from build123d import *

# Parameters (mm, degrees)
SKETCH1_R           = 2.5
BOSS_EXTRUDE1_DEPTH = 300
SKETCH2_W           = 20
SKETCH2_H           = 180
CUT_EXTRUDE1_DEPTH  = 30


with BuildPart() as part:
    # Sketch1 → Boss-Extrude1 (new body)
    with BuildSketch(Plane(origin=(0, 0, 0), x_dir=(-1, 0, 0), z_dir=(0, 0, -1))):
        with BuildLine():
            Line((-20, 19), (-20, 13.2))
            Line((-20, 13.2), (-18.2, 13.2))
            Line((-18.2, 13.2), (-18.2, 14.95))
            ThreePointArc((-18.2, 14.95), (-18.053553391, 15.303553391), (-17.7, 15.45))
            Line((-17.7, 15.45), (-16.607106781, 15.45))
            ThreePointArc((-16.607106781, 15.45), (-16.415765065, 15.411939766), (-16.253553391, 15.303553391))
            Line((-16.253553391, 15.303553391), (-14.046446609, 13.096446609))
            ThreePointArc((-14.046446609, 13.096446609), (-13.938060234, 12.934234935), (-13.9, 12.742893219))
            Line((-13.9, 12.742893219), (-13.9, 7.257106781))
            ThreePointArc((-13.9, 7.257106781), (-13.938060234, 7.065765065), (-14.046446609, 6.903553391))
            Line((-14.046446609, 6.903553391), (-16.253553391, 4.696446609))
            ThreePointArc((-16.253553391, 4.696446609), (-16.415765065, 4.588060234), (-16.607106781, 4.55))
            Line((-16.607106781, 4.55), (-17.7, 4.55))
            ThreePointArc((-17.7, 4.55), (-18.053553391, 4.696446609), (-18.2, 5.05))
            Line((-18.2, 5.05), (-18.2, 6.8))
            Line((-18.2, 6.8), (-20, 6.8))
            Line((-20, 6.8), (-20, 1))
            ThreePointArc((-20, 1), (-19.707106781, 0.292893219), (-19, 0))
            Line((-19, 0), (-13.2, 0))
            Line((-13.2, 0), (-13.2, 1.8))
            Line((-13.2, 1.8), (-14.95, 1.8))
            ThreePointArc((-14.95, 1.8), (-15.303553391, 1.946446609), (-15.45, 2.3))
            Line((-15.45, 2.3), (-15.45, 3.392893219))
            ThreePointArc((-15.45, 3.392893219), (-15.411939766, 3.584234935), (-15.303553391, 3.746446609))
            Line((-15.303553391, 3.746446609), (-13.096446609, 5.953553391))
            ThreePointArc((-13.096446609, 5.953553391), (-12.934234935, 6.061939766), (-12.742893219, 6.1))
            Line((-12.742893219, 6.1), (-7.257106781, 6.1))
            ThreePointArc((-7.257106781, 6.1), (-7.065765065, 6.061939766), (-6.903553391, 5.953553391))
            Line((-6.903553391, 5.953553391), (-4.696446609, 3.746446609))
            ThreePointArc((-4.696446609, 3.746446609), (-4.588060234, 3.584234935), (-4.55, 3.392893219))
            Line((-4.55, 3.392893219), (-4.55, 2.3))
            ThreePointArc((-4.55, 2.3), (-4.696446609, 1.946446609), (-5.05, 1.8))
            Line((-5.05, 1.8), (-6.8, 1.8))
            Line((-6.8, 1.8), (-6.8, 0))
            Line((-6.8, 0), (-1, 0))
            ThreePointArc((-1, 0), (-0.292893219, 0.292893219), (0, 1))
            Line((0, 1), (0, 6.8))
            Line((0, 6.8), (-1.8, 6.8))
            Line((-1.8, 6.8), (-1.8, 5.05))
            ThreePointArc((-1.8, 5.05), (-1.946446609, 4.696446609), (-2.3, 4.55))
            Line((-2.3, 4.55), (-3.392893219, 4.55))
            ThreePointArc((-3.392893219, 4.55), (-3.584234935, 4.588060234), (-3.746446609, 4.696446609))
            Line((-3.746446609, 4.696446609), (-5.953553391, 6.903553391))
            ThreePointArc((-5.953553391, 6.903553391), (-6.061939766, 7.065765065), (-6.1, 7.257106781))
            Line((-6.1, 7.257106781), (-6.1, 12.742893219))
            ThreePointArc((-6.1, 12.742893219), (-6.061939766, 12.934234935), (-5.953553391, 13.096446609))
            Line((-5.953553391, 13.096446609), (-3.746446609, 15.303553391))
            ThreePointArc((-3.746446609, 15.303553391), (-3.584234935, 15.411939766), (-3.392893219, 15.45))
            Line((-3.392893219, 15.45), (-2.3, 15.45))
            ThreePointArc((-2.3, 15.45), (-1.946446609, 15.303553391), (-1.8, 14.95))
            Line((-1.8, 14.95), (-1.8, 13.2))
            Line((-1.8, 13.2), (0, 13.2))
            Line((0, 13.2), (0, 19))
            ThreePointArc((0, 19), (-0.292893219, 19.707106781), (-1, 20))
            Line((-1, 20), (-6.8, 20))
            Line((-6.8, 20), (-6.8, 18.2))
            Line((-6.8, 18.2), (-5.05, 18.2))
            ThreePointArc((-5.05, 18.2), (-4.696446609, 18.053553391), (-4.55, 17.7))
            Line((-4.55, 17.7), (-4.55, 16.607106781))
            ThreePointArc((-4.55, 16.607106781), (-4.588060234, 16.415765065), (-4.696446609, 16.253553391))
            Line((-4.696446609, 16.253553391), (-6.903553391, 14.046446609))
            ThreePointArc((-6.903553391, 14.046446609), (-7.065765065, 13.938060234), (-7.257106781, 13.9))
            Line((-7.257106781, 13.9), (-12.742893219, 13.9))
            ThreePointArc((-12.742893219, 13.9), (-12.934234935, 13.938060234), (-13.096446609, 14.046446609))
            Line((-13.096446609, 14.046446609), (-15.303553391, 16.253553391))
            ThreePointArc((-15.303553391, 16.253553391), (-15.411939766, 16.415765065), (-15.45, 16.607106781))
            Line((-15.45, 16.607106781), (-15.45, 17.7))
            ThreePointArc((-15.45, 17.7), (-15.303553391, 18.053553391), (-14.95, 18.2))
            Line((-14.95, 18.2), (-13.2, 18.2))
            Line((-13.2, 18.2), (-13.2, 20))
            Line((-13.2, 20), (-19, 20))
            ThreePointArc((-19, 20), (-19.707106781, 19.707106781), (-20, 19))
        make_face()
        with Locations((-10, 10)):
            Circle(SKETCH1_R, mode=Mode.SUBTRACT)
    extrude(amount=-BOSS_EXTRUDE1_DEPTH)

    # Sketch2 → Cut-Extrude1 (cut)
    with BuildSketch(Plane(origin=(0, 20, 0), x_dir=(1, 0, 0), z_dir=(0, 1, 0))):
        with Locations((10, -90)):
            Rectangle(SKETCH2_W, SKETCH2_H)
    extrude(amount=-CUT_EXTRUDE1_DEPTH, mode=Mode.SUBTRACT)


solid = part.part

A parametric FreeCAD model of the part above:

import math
import FreeCAD as App
import Part
import Sketcher
Q = App.Units.Quantity


def add_polygon(sketch, points):
    """Adds a closed chain of lines whose ends are joined by coincident constraints."""
    first, n = sketch.GeometryCount, len(points)
    for a, b in zip(points, points[1:] + points[:1]):
        sketch.addGeometry(Part.LineSegment(App.Vector(*a, 0), App.Vector(*b, 0)), False)
    for i in range(n):
        sketch.addConstraint(Sketcher.Constraint("Coincident", first + i, 2, first + (i + 1) % n, 1))

doc = App.newDocument("Part")
body = doc.addObject("PartDesign::Body", "Body")

# Sketch on XY plane
sketch1 = body.newObject("Sketcher::SketchObject", "Sketch")
sketch1.AttachmentSupport = (doc.getObject("XY_Plane"), [""])
sketch1.MapMode = "FlatFace"
sketch1.addGeometry([
    Part.LineSegment(App.Vector(20, 19, 0), App.Vector(20, 13.2, 0)),  # 0
    Part.LineSegment(App.Vector(20, 13.2, 0), App.Vector(18.2, 13.2, 0)),  # 1
    Part.LineSegment(App.Vector(18.2, 13.2, 0), App.Vector(18.2, 14.95, 0)),  # 2
    Part.ArcOfCircle(Part.Circle(App.Vector(17.7, 14.95, 0), App.Vector(0, 0, 1), 0.5), math.radians(0), math.radians(90)),  # 3
    Part.LineSegment(App.Vector(17.7, 15.45, 0), App.Vector(16.61, 15.45, 0)),  # 4
    Part.ArcOfCircle(Part.Circle(App.Vector(16.61, 14.95, 0), App.Vector(0, 0, 1), 0.5), math.radians(90), math.radians(135)),  # 5
    Part.LineSegment(App.Vector(16.25, 15.3, 0), App.Vector(14.05, 13.1, 0)),  # 6
    Part.ArcOfCircle(Part.Circle(App.Vector(14.4, 12.74, 0), App.Vector(0, 0, 1), 0.5), math.radians(135), math.radians(180)),  # 7
    Part.LineSegment(App.Vector(13.9, 12.74, 0), App.Vector(13.9, 7.26, 0)),  # 8
    Part.ArcOfCircle(Part.Circle(App.Vector(14.4, 7.26, 0), App.Vector(0, 0, 1), 0.5), math.radians(-180), math.radians(-135)),  # 9
    Part.LineSegment(App.Vector(14.05, 6.9, 0), App.Vector(16.25, 4.7, 0)),  # 10
    Part.ArcOfCircle(Part.Circle(App.Vector(16.61, 5.05, 0), App.Vector(0, 0, 1), 0.5), math.radians(-135), math.radians(-90)),  # 11
    Part.LineSegment(App.Vector(16.61, 4.55, 0), App.Vector(17.7, 4.55, 0)),  # 12
    Part.ArcOfCircle(Part.Circle(App.Vector(17.7, 5.05, 0), App.Vector(0, 0, 1), 0.5), math.radians(-90), math.radians(0)),  # 13
    Part.LineSegment(App.Vector(18.2, 5.05, 0), App.Vector(18.2, 6.8, 0)),  # 14
    Part.LineSegment(App.Vector(18.2, 6.8, 0), App.Vector(20, 6.8, 0)),  # 15
    Part.LineSegment(App.Vector(20, 6.8, 0), App.Vector(20, 1, 0)),  # 16
    Part.ArcOfCircle(Part.Circle(App.Vector(19, 1, 0), App.Vector(0, 0, 1), 1), math.radians(-90), math.radians(0)),  # 17
    Part.LineSegment(App.Vector(19, 0, 0), App.Vector(13.2, 0, 0)),  # 18
    Part.LineSegment(App.Vector(13.2, 0, 0), App.Vector(13.2, 1.8, 0)),  # 19
    Part.LineSegment(App.Vector(13.2, 1.8, 0), App.Vector(14.95, 1.8, 0)),  # 20
    Part.ArcOfCircle(Part.Circle(App.Vector(14.95, 2.3, 0), App.Vector(0, 0, 1), 0.5), math.radians(-90), math.radians(0)),  # 21
    Part.LineSegment(App.Vector(15.45, 2.3, 0), App.Vector(15.45, 3.39, 0)),  # 22
    Part.ArcOfCircle(Part.Circle(App.Vector(14.95, 3.39, 0), App.Vector(0, 0, 1), 0.5), math.radians(0), math.radians(45)),  # 23
    Part.LineSegment(App.Vector(15.3, 3.75, 0), App.Vector(13.1, 5.95, 0)),  # 24
    Part.ArcOfCircle(Part.Circle(App.Vector(12.74, 5.6, 0), App.Vector(0, 0, 1), 0.5), math.radians(45), math.radians(90)),  # 25
    Part.LineSegment(App.Vector(12.74, 6.1, 0), App.Vector(7.26, 6.1, 0)),  # 26
    Part.ArcOfCircle(Part.Circle(App.Vector(7.26, 5.6, 0), App.Vector(0, 0, 1), 0.5), math.radians(90), math.radians(135)),  # 27
    Part.LineSegment(App.Vector(6.9, 5.95, 0), App.Vector(4.7, 3.75, 0)),  # 28
    Part.ArcOfCircle(Part.Circle(App.Vector(5.05, 3.39, 0), App.Vector(0, 0, 1), 0.5), math.radians(135), math.radians(180)),  # 29
    Part.LineSegment(App.Vector(4.55, 3.39, 0), App.Vector(4.55, 2.3, 0)),  # 30
    Part.ArcOfCircle(Part.Circle(App.Vector(5.05, 2.3, 0), App.Vector(0, 0, 1), 0.5), math.radians(180), math.radians(270)),  # 31
    Part.LineSegment(App.Vector(5.05, 1.8, 0), App.Vector(6.8, 1.8, 0)),  # 32
    Part.LineSegment(App.Vector(6.8, 1.8, 0), App.Vector(6.8, 0, 0)),  # 33
    Part.LineSegment(App.Vector(6.8, 0, 0), App.Vector(1, 0, 0)),  # 34
    Part.ArcOfCircle(Part.Circle(App.Vector(1, 1, 0), App.Vector(0, 0, 1), 1), math.radians(-180), math.radians(-90)),  # 35
    Part.LineSegment(App.Vector(0, 1, 0), App.Vector(0, 6.8, 0)),  # 36
    Part.LineSegment(App.Vector(0, 6.8, 0), App.Vector(1.8, 6.8, 0)),  # 37
    Part.LineSegment(App.Vector(1.8, 6.8, 0), App.Vector(1.8, 5.05, 0)),  # 38
    Part.ArcOfCircle(Part.Circle(App.Vector(2.3, 5.05, 0), App.Vector(0, 0, 1), 0.5), math.radians(180), math.radians(270)),  # 39
    Part.LineSegment(App.Vector(2.3, 4.55, 0), App.Vector(3.39, 4.55, 0)),  # 40
    Part.ArcOfCircle(Part.Circle(App.Vector(3.39, 5.05, 0), App.Vector(0, 0, 1), 0.5), math.radians(-90), math.radians(-45)),  # 41
    Part.LineSegment(App.Vector(3.75, 4.7, 0), App.Vector(5.95, 6.9, 0)),  # 42
    Part.ArcOfCircle(Part.Circle(App.Vector(5.6, 7.26, 0), App.Vector(0, 0, 1), 0.5), math.radians(-45), math.radians(0)),  # 43
    Part.LineSegment(App.Vector(6.1, 7.26, 0), App.Vector(6.1, 12.74, 0)),  # 44
    Part.ArcOfCircle(Part.Circle(App.Vector(5.6, 12.74, 0), App.Vector(0, 0, 1), 0.5), math.radians(0), math.radians(45)),  # 45
    Part.LineSegment(App.Vector(5.95, 13.1, 0), App.Vector(3.75, 15.3, 0)),  # 46
    Part.ArcOfCircle(Part.Circle(App.Vector(3.39, 14.95, 0), App.Vector(0, 0, 1), 0.5), math.radians(45), math.radians(90)),  # 47
    Part.LineSegment(App.Vector(3.39, 15.45, 0), App.Vector(2.3, 15.45, 0)),  # 48
    Part.ArcOfCircle(Part.Circle(App.Vector(2.3, 14.95, 0), App.Vector(0, 0, 1), 0.5), math.radians(90), math.radians(180)),  # 49
    Part.LineSegment(App.Vector(1.8, 14.95, 0), App.Vector(1.8, 13.2, 0)),  # 50
    Part.LineSegment(App.Vector(1.8, 13.2, 0), App.Vector(0, 13.2, 0)),  # 51
    Part.LineSegment(App.Vector(0, 13.2, 0), App.Vector(0, 19, 0)),  # 52
    Part.ArcOfCircle(Part.Circle(App.Vector(1, 19, 0), App.Vector(0, 0, 1), 1), math.radians(90), math.radians(180)),  # 53
    Part.LineSegment(App.Vector(1, 20, 0), App.Vector(6.8, 20, 0)),  # 54
    Part.LineSegment(App.Vector(6.8, 20, 0), App.Vector(6.8, 18.2, 0)),  # 55
    Part.LineSegment(App.Vector(6.8, 18.2, 0), App.Vector(5.05, 18.2, 0)),  # 56
    Part.ArcOfCircle(Part.Circle(App.Vector(5.05, 17.7, 0), App.Vector(0, 0, 1), 0.5), math.radians(90), math.radians(180)),  # 57
    Part.LineSegment(App.Vector(4.55, 17.7, 0), App.Vector(4.55, 16.61, 0)),  # 58
    Part.ArcOfCircle(Part.Circle(App.Vector(5.05, 16.61, 0), App.Vector(0, 0, 1), 0.5), math.radians(-180), math.radians(-135)),  # 59
    Part.LineSegment(App.Vector(4.7, 16.25, 0), App.Vector(6.9, 14.05, 0)),  # 60
    Part.ArcOfCircle(Part.Circle(App.Vector(7.26, 14.4, 0), App.Vector(0, 0, 1), 0.5), math.radians(-135), math.radians(-90)),  # 61
    Part.LineSegment(App.Vector(7.26, 13.9, 0), App.Vector(12.74, 13.9, 0)),  # 62
    Part.ArcOfCircle(Part.Circle(App.Vector(12.74, 14.4, 0), App.Vector(0, 0, 1), 0.5), math.radians(-90), math.radians(-45)),  # 63
    Part.LineSegment(App.Vector(13.1, 14.05, 0), App.Vector(15.3, 16.25, 0)),  # 64
    Part.ArcOfCircle(Part.Circle(App.Vector(14.95, 16.61, 0), App.Vector(0, 0, 1), 0.5), math.radians(-45), math.radians(0)),  # 65
    Part.LineSegment(App.Vector(15.45, 16.61, 0), App.Vector(15.45, 17.7, 0)),  # 66
    Part.ArcOfCircle(Part.Circle(App.Vector(14.95, 17.7, 0), App.Vector(0, 0, 1), 0.5), math.radians(0), math.radians(90)),  # 67
    Part.LineSegment(App.Vector(14.95, 18.2, 0), App.Vector(13.2, 18.2, 0)),  # 68
    Part.LineSegment(App.Vector(13.2, 18.2, 0), App.Vector(13.2, 20, 0)),  # 69
    Part.LineSegment(App.Vector(13.2, 20, 0), App.Vector(19, 20, 0)),  # 70
    Part.ArcOfCircle(Part.Circle(App.Vector(19, 19, 0), App.Vector(0, 0, 1), 1), math.radians(0), math.radians(90)),  # 71
    Part.Circle(App.Vector(10, 10, 0), App.Vector(0, 0, 1), 2.5),  # 72
], False)
sketch1.addConstraint([
    Sketcher.Constraint("Coincident", 0, 2, 1, 1),
    Sketcher.Constraint("Coincident", 1, 2, 2, 1),
    Sketcher.Constraint("Tangent", 2, 2, 3, 1),
    Sketcher.Constraint("Tangent", 3, 2, 4, 1),
    Sketcher.Constraint("Tangent", 4, 2, 5, 1),
    Sketcher.Constraint("Tangent", 5, 2, 6, 1),
    Sketcher.Constraint("Tangent", 6, 2, 7, 1),
    Sketcher.Constraint("Tangent", 7, 2, 8, 1),
    Sketcher.Constraint("Tangent", 8, 2, 9, 1),
    Sketcher.Constraint("Tangent", 9, 2, 10, 1),
    Sketcher.Constraint("Tangent", 10, 2, 11, 1),
    Sketcher.Constraint("Tangent", 11, 2, 12, 1),
    Sketcher.Constraint("Tangent", 12, 2, 13, 1),
    Sketcher.Constraint("Tangent", 13, 2, 14, 1),
    Sketcher.Constraint("Coincident", 14, 2, 15, 1),
    Sketcher.Constraint("Coincident", 15, 2, 16, 1),
    Sketcher.Constraint("Tangent", 16, 2, 17, 2),
    Sketcher.Constraint("Tangent", 17, 1, 18, 1),
    Sketcher.Constraint("Coincident", 18, 2, 19, 1),
    Sketcher.Constraint("Coincident", 19, 2, 20, 1),
    Sketcher.Constraint("Tangent", 20, 2, 21, 1),
    Sketcher.Constraint("Tangent", 21, 2, 22, 1),
    Sketcher.Constraint("Tangent", 22, 2, 23, 1),
    Sketcher.Constraint("Tangent", 23, 2, 24, 1),
    Sketcher.Constraint("Tangent", 24, 2, 25, 1),
    Sketcher.Constraint("Tangent", 25, 2, 26, 1),
    Sketcher.Constraint("Tangent", 26, 2, 27, 1),
    Sketcher.Constraint("Tangent", 27, 2, 28, 1),
    Sketcher.Constraint("Tangent", 28, 2, 29, 1),
    Sketcher.Constraint("Tangent", 29, 2, 30, 1),
    Sketcher.Constraint("Tangent", 30, 2, 31, 1),
    Sketcher.Constraint("Tangent", 31, 2, 32, 1),
    Sketcher.Constraint("Coincident", 32, 2, 33, 1),
    Sketcher.Constraint("Coincident", 33, 2, 34, 1),
    Sketcher.Constraint("Tangent", 34, 2, 35, 2),
    Sketcher.Constraint("Tangent", 35, 1, 36, 1),
    Sketcher.Constraint("Coincident", 36, 2, 37, 1),
    Sketcher.Constraint("Coincident", 37, 2, 38, 1),
    Sketcher.Constraint("Tangent", 38, 2, 39, 1),
    Sketcher.Constraint("Tangent", 39, 2, 40, 1),
    Sketcher.Constraint("Tangent", 40, 2, 41, 1),
    Sketcher.Constraint("Tangent", 41, 2, 42, 1),
    Sketcher.Constraint("Tangent", 42, 2, 43, 1),
    Sketcher.Constraint("Tangent", 43, 2, 44, 1),
    Sketcher.Constraint("Tangent", 44, 2, 45, 1),
    Sketcher.Constraint("Tangent", 45, 2, 46, 1),
    Sketcher.Constraint("Tangent", 46, 2, 47, 1),
    Sketcher.Constraint("Tangent", 47, 2, 48, 1),
    Sketcher.Constraint("Tangent", 48, 2, 49, 1),
    Sketcher.Constraint("Tangent", 49, 2, 50, 1),
    Sketcher.Constraint("Coincident", 50, 2, 51, 1),
    Sketcher.Constraint("Coincident", 51, 2, 52, 1),
    Sketcher.Constraint("Tangent", 52, 2, 53, 2),
    Sketcher.Constraint("Tangent", 53, 1, 54, 1),
    Sketcher.Constraint("Coincident", 54, 2, 55, 1),
    Sketcher.Constraint("Coincident", 55, 2, 56, 1),
    Sketcher.Constraint("Tangent", 56, 2, 57, 1),
    Sketcher.Constraint("Tangent", 57, 2, 58, 1),
    Sketcher.Constraint("Tangent", 58, 2, 59, 1),
    Sketcher.Constraint("Tangent", 59, 2, 60, 1),
    Sketcher.Constraint("Tangent", 60, 2, 61, 1),
    Sketcher.Constraint("Tangent", 61, 2, 62, 1),
    Sketcher.Constraint("Tangent", 62, 2, 63, 1),
    Sketcher.Constraint("Tangent", 63, 2, 64, 1),
    Sketcher.Constraint("Tangent", 64, 2, 65, 1),
    Sketcher.Constraint("Tangent", 65, 2, 66, 1),
    Sketcher.Constraint("Tangent", 66, 2, 67, 1),
    Sketcher.Constraint("Tangent", 67, 2, 68, 1),
    Sketcher.Constraint("Coincident", 68, 2, 69, 1),
    Sketcher.Constraint("Coincident", 69, 2, 70, 1),
    Sketcher.Constraint("Tangent", 70, 2, 71, 2),
    Sketcher.Constraint("Tangent", 71, 1, 0, 1),
    Sketcher.Constraint("Vertical", 0),
    Sketcher.Constraint("Horizontal", 1),
    Sketcher.Constraint("Vertical", 2),
    Sketcher.Constraint("Horizontal", 4),
    Sketcher.Constraint("Vertical", 8),
    Sketcher.Constraint("Horizontal", 12),
    Sketcher.Constraint("Vertical", 14),
    Sketcher.Constraint("Horizontal", 15),
    Sketcher.Constraint("Vertical", 16),
    Sketcher.Constraint("Horizontal", 18),
    Sketcher.Constraint("Vertical", 19),
    Sketcher.Constraint("Horizontal", 20),
    Sketcher.Constraint("Vertical", 22),
    Sketcher.Constraint("Horizontal", 26),
    Sketcher.Constraint("Vertical", 30),
    Sketcher.Constraint("Horizontal", 32),
    Sketcher.Constraint("Vertical", 33),
    Sketcher.Constraint("Horizontal", 34),
    Sketcher.Constraint("Vertical", 36),
    Sketcher.Constraint("Horizontal", 37),
    Sketcher.Constraint("Vertical", 38),
    Sketcher.Constraint("Horizontal", 40),
    Sketcher.Constraint("Vertical", 44),
    Sketcher.Constraint("Horizontal", 48),
    Sketcher.Constraint("Vertical", 50),
    Sketcher.Constraint("Horizontal", 51),
    Sketcher.Constraint("Vertical", 52),
    Sketcher.Constraint("Horizontal", 54),
    Sketcher.Constraint("Vertical", 55),
    Sketcher.Constraint("Horizontal", 56),
    Sketcher.Constraint("Vertical", 58),
    Sketcher.Constraint("Horizontal", 62),
    Sketcher.Constraint("Vertical", 66),
    Sketcher.Constraint("Horizontal", 68),
    Sketcher.Constraint("Vertical", 69),
    Sketcher.Constraint("Horizontal", 70),
    Sketcher.Constraint("Equal", 3, 5),
    Sketcher.Constraint("Equal", 5, 7),
    Sketcher.Constraint("Equal", 7, 9),
    Sketcher.Constraint("Equal", 9, 11),
    Sketcher.Constraint("Equal", 11, 13),
    Sketcher.Constraint("Equal", 13, 21),
    Sketcher.Constraint("Equal", 21, 23),
    Sketcher.Constraint("Equal", 23, 25),
    Sketcher.Constraint("Equal", 25, 27),
    Sketcher.Constraint("Equal", 27, 29),
    Sketcher.Constraint("Equal", 29, 31),
    Sketcher.Constraint("Equal", 17, 35),
    Sketcher.Constraint("Equal", 31, 39),
    Sketcher.Constraint("Equal", 39, 41),
    Sketcher.Constraint("Equal", 41, 43),
    Sketcher.Constraint("Equal", 43, 45),
    Sketcher.Constraint("Equal", 45, 47),
    Sketcher.Constraint("Equal", 47, 49),
    Sketcher.Constraint("Equal", 35, 53),
    Sketcher.Constraint("Equal", 49, 57),
    Sketcher.Constraint("Equal", 57, 59),
    Sketcher.Constraint("Equal", 59, 61),
    Sketcher.Constraint("Equal", 61, 63),
    Sketcher.Constraint("Equal", 63, 65),
    Sketcher.Constraint("Equal", 65, 67),
    Sketcher.Constraint("Equal", 53, 71),
    Sketcher.Constraint("PointOnObject", 17, 1, -1),
    Sketcher.Constraint("PointOnObject", 33, 2, -1),
    Sketcher.Constraint("PointOnObject", 35, 1, -2),
    Sketcher.Constraint("PointOnObject", 51, 2, -2),
    Sketcher.Constraint("Perpendicular", 6, 10),
    Sketcher.Constraint("Parallel", 10, 24),
    Sketcher.Constraint("Perpendicular", 24, 28),
    Sketcher.Constraint("Parallel", 28, 42),
    Sketcher.Constraint("Perpendicular", 42, 46),
    Sketcher.Constraint("Parallel", 46, 60),
    Sketcher.Constraint("Perpendicular", 60, 64),
    Sketcher.Constraint("Horizontal", 23, 3, 29, 3),
    Sketcher.Constraint("Horizontal", 21, 3, 31, 3),
    Sketcher.Constraint("Horizontal", 13, 3, 39, 3),
    Sketcher.Constraint("Horizontal", 9, 3, 43, 3),
    Sketcher.Constraint("Horizontal", 7, 3, 45, 3),
    Sketcher.Constraint("Horizontal", 5, 3, 47, 3),
    Sketcher.Constraint("Horizontal", 59, 3, 65, 3),
    Sketcher.Constraint("Horizontal", 57, 3, 67, 3),
    Sketcher.Constraint("Horizontal", 53, 3, 71, 3),
    Sketcher.Constraint("Horizontal", 24, 2, 27, 2),
    Sketcher.Constraint("Horizontal", 15, 2, 36, 2),
    Sketcher.Constraint("Horizontal", 1, 2, 50, 2),
    Sketcher.Constraint("Vertical", 5, 3, 11, 3),
    Sketcher.Constraint("Vertical", 3, 3, 13, 3),
    Sketcher.Constraint("Vertical", 39, 3, 49, 3),
    Sketcher.Constraint("Vertical", 31, 3, 57, 3),
    Sketcher.Constraint("Vertical", 27, 3, 61, 3),
    Sketcher.Constraint("Vertical", 25, 3, 63, 3),
    Sketcher.Constraint("Vertical", 17, 3, 71, 3),
    Sketcher.Constraint("Vertical", 33, 2, 54, 2),
    Sketcher.Constraint("Vertical", 19, 2, 68, 2),
    Sketcher.Constraint("Equal", 20, 32),
    Sketcher.Constraint("Equal", 18, 34),
    Sketcher.Constraint("Equal", 15, 37),
    Sketcher.Constraint("Equal", 12, 40),
    Sketcher.Constraint("Equal", 70, 0),
    Sketcher.Constraint("Equal", 68, 2),
    Sketcher.Constraint("Equal", 62, 8),
    Sketcher.Constraint("Equal", 2, 14),
    Sketcher.Constraint("Equal", 0, 16),
    Sketcher.Constraint("Equal", 51, 19),
    Sketcher.Constraint("Equal", 48, 22),
    Sketcher.Constraint("Equal", 33, 55),
    Sketcher.Constraint("Equal", 30, 58),
    Sketcher.Constraint("Equal", 10, 24),
    Sketcher.Constraint("Diameter", 72, Q("5 mm")),
    Sketcher.Constraint("Radius", 17, Q("1 mm")),
    Sketcher.Constraint("Radius", 3, Q("0.5 mm")),
    Sketcher.Constraint("DistanceX", 1, 2, 1, 1, Q("1.8 mm")),
    Sketcher.Constraint("DistanceX", 18, 2, 18, 1, Q("5.8 mm")),
    Sketcher.Constraint("DistanceX", -1, 1, 17, 3, Q("19 mm")),
    Sketcher.Constraint("DistanceX", -1, 1, 72, 3, Q("10 mm")),
    Sketcher.Constraint("DistanceY", -1, 1, 72, 3, Q("10 mm")),
    Sketcher.Constraint("DistanceX", 20, 1, 20, 2, Q("1.75 mm")),
    Sketcher.Constraint("DistanceX", -1, 1, 7, 3, Q("14.4 mm")),
    Sketcher.Constraint("Distance", 6, Q("3.12132 mm")),
])
pad1 = body.newObject("PartDesign::Pad", "Pad")
pad1.Profile = sketch1
pad1.Length = 300

# Sketch on XZ plane
sketch2 = body.newObject("Sketcher::SketchObject", "Sketch001")
sketch2.AttachmentSupport = (doc.getObject("XZ_Plane"), [""])
sketch2.MapMode = "FlatFace"
sketch2.AttachmentOffset = App.Placement(App.Vector(0, 0, -20), App.Rotation())
add_polygon(sketch2, [(0, 0), (0, 180), (20, 180), (20, 0)])  # lines 0-3
sketch2.addConstraint([
    Sketcher.Constraint("Vertical", 0),
    Sketcher.Constraint("Horizontal", 1),
    Sketcher.Constraint("Vertical", 2),
    Sketcher.Constraint("Horizontal", 3),
    Sketcher.Constraint("Coincident", 3, 2, -1, 1),
    Sketcher.Constraint("DistanceX", 1, 1, 1, 2, Q("20 mm")),
    Sketcher.Constraint("DistanceY", 0, 1, 0, 2, Q("180 mm")),
])
pocket1 = body.newObject("PartDesign::Pocket", "Pocket")
pocket1.Profile = sketch2
pocket1.Length = 30
pocket1.Reversed = True

doc.recompute()
